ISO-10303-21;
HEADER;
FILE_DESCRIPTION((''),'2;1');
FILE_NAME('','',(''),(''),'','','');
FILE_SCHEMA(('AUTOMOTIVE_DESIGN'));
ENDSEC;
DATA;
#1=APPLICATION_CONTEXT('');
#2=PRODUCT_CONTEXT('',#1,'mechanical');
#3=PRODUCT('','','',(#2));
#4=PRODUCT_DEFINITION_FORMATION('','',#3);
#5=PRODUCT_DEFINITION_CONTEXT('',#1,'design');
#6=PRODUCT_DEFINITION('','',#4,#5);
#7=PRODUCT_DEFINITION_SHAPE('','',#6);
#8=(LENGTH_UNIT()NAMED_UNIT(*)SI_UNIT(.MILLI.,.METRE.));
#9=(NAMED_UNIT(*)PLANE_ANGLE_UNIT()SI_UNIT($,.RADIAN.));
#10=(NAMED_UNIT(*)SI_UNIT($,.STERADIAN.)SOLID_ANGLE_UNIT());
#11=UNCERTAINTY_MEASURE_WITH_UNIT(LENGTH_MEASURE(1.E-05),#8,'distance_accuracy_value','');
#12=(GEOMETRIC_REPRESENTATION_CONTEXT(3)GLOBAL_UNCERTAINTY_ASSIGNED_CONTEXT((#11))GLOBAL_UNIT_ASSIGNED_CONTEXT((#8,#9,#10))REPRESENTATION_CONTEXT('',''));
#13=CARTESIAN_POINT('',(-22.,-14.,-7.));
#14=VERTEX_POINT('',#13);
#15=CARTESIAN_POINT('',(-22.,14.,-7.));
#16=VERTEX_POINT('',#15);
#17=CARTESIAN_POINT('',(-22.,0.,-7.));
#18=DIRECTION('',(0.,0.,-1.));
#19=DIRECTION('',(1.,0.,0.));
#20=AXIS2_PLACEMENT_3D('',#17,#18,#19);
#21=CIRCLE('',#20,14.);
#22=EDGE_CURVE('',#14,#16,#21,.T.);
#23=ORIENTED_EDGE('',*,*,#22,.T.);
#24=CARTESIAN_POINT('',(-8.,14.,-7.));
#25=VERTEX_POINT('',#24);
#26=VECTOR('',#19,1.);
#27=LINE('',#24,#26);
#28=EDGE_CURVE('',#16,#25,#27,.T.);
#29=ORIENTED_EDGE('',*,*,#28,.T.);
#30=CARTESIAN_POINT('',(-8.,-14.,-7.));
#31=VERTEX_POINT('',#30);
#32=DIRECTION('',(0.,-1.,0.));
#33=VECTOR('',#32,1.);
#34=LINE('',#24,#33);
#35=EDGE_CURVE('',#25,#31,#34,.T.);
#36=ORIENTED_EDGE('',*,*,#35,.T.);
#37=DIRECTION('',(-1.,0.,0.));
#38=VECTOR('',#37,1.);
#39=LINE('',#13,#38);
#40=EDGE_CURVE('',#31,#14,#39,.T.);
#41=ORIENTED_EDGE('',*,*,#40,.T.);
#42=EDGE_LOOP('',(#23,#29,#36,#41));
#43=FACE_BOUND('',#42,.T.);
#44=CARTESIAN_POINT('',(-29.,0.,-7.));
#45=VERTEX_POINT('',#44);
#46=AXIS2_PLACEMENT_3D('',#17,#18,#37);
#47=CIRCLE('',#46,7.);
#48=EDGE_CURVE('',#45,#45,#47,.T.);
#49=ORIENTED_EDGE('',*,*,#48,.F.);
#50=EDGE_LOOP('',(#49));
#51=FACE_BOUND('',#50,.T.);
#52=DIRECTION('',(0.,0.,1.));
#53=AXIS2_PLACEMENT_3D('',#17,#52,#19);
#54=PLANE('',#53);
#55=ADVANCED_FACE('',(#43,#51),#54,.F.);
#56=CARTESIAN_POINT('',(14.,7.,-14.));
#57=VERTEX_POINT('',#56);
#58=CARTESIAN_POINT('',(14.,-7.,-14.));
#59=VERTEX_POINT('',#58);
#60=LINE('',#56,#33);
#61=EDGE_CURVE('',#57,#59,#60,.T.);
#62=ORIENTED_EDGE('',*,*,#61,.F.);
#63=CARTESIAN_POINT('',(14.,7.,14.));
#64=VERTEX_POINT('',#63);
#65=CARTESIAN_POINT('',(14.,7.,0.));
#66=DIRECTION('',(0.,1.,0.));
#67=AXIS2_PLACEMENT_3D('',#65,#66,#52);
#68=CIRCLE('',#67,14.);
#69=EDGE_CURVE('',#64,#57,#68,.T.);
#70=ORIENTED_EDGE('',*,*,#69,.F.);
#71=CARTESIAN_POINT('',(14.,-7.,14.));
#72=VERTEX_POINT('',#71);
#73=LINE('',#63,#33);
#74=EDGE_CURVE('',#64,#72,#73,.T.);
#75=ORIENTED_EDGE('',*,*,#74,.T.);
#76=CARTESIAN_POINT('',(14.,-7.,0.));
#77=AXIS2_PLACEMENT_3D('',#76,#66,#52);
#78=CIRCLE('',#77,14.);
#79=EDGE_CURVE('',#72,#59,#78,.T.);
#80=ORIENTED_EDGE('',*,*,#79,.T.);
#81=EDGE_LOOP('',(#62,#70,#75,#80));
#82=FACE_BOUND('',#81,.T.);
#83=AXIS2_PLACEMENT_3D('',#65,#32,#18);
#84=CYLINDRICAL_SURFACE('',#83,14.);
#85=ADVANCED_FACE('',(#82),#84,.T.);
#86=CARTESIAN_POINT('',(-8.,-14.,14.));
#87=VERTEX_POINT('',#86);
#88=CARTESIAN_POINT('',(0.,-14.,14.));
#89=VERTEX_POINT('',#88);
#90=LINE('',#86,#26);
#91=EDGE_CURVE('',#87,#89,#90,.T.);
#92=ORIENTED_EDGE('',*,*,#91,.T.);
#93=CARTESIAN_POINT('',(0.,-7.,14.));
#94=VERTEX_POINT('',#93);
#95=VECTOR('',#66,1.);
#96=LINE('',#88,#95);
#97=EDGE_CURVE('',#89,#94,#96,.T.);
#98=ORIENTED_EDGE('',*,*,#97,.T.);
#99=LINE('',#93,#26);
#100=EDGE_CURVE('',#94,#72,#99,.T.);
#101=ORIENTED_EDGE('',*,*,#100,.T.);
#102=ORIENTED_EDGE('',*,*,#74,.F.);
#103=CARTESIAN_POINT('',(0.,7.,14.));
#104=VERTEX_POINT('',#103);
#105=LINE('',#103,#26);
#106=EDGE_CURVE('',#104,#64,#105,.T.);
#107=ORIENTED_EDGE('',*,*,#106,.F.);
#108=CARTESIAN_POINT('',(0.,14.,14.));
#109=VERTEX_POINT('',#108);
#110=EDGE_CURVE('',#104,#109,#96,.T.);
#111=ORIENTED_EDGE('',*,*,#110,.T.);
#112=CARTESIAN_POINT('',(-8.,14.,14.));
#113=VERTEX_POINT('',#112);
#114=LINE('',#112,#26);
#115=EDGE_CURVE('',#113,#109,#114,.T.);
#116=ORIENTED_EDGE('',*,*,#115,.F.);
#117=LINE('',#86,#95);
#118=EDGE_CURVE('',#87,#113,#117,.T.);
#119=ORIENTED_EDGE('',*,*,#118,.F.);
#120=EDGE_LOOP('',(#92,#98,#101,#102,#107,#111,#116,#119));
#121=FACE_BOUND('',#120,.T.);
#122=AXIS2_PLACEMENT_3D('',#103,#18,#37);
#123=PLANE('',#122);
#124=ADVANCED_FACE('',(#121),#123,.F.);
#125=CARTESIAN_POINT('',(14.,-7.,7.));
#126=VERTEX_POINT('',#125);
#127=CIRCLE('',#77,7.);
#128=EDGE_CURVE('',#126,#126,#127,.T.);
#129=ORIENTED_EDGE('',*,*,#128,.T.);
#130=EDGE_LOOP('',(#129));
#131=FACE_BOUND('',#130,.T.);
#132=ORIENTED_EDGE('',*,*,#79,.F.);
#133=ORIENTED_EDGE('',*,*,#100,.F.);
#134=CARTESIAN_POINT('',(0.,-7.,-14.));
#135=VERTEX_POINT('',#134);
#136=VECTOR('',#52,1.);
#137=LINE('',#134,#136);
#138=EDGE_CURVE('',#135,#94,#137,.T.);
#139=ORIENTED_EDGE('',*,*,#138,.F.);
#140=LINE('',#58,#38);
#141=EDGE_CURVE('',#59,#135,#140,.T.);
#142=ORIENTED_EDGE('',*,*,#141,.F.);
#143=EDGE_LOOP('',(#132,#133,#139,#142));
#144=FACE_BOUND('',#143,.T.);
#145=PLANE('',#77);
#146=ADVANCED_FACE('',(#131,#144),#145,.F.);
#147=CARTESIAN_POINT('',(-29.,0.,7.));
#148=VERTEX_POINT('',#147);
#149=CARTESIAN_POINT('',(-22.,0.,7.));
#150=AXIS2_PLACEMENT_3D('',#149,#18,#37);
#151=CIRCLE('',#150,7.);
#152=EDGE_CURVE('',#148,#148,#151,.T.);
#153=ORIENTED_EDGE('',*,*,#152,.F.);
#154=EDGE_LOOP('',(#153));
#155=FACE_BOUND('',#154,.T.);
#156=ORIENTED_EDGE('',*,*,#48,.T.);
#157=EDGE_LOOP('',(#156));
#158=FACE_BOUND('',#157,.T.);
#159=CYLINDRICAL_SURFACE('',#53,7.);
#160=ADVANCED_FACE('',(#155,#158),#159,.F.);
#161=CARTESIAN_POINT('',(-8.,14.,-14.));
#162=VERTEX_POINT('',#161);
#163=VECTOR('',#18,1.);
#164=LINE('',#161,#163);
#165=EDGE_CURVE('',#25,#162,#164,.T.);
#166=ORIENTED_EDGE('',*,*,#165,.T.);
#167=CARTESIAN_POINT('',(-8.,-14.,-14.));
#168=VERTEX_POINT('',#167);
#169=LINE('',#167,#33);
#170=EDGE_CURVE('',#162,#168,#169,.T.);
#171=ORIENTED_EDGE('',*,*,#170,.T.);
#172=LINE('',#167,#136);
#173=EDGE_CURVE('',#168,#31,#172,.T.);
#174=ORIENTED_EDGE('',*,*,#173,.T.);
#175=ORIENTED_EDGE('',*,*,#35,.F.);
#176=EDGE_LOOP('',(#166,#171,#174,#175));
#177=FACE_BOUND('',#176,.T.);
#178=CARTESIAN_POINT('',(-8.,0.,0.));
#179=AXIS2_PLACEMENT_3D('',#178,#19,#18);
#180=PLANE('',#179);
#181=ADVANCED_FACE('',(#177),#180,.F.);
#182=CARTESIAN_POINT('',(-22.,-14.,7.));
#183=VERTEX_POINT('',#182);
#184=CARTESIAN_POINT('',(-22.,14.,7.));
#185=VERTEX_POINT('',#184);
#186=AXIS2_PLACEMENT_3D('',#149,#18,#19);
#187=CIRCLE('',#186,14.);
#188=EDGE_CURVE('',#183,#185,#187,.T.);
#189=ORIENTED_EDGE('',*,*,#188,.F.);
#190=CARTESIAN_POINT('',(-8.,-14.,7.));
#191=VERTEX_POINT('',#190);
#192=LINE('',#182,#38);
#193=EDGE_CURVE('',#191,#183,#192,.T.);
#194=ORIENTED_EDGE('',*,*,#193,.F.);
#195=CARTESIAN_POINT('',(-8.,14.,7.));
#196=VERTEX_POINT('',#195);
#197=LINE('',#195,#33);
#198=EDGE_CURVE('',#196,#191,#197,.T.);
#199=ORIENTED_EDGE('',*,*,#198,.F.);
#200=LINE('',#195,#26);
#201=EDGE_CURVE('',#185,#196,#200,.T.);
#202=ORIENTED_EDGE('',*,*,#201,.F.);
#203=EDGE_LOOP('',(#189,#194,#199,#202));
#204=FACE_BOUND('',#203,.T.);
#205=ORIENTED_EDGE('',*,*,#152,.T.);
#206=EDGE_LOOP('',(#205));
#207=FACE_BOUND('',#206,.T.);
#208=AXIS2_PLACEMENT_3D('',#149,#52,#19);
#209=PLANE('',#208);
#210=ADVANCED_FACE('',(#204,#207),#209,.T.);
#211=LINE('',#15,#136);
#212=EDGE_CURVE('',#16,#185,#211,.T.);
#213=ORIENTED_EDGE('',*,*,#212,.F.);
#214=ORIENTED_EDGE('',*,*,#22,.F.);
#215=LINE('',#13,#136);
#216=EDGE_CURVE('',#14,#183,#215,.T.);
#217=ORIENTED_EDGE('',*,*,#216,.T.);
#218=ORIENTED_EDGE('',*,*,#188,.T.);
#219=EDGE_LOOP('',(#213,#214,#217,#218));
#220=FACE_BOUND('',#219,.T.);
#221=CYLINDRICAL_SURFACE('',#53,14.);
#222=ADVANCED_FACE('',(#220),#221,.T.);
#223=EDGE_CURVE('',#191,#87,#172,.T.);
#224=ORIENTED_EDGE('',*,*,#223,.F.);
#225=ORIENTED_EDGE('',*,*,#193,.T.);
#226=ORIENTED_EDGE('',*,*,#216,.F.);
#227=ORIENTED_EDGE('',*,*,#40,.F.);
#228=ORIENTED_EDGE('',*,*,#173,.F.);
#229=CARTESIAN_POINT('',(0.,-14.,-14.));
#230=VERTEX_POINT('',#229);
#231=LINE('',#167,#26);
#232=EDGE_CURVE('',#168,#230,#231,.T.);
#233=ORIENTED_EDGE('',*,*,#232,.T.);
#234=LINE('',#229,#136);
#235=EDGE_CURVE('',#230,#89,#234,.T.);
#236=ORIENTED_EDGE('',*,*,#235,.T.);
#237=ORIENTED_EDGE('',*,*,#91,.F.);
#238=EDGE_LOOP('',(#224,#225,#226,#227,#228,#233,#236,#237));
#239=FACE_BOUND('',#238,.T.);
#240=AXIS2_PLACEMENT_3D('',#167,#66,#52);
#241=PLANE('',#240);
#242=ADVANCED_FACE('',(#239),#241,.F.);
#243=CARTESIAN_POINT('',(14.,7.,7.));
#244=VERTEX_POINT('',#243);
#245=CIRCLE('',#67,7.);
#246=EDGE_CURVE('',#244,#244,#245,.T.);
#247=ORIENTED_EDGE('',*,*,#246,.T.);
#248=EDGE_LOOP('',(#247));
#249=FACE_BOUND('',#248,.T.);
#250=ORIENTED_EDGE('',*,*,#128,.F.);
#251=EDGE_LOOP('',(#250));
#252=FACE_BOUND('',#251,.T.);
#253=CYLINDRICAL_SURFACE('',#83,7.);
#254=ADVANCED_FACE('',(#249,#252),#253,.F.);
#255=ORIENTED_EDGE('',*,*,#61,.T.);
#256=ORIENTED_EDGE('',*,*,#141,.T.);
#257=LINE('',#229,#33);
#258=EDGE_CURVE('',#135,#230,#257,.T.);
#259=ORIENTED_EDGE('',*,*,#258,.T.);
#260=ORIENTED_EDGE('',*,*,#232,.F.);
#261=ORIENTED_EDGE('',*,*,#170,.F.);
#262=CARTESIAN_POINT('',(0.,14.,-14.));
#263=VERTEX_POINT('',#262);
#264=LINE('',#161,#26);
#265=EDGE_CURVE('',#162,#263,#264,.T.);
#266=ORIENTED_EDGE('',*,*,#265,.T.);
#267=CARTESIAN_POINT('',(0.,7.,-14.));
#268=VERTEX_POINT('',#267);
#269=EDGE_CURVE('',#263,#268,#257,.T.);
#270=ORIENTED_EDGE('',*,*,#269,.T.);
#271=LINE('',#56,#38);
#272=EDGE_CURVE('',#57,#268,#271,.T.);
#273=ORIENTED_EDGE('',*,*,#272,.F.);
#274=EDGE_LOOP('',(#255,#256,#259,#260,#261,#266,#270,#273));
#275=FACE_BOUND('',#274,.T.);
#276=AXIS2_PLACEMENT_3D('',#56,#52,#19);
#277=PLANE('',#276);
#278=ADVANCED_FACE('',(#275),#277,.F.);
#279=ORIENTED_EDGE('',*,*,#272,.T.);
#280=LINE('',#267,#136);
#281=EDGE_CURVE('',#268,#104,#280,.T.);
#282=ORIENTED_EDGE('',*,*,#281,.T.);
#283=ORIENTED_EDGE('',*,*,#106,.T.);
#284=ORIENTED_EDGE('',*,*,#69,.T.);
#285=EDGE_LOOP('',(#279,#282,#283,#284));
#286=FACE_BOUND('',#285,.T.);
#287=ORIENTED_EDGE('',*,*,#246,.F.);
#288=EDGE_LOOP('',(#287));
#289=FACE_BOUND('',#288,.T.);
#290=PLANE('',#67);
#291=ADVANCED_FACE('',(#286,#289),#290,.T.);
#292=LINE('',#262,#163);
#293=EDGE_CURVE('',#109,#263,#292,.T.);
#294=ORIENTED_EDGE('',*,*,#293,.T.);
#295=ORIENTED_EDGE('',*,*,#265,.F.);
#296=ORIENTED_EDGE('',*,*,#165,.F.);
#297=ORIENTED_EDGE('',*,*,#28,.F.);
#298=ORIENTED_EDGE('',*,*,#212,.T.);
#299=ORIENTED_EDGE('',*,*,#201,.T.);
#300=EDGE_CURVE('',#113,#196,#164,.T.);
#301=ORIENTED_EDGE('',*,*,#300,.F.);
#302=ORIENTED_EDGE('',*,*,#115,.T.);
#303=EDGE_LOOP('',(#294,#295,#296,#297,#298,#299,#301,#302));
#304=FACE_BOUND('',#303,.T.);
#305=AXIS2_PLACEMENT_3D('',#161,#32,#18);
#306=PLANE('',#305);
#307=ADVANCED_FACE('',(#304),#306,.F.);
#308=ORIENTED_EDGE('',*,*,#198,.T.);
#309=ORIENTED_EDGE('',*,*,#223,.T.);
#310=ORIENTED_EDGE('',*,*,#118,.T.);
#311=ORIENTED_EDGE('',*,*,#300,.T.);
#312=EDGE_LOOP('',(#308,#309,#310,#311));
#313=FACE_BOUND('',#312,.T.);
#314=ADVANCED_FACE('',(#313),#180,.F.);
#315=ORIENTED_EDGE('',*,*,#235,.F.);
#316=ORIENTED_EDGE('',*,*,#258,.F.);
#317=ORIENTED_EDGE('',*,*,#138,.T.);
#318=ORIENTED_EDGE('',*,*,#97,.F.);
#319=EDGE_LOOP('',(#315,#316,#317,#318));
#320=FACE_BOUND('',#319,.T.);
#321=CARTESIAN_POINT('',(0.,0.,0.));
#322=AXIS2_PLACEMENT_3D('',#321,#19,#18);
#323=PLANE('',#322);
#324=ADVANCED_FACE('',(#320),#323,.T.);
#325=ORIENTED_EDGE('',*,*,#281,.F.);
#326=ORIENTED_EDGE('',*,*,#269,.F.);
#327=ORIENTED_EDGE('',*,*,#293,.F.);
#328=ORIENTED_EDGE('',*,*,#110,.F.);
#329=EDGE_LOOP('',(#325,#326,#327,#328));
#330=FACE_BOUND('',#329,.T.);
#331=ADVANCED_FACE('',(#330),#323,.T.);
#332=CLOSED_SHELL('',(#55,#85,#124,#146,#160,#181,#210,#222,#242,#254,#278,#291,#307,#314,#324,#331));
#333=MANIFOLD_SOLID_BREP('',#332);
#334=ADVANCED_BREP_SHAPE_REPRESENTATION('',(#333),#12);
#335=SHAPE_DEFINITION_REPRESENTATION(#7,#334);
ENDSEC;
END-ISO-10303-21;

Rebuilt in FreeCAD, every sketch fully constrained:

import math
import FreeCAD as App
import Part
import Sketcher
from FreeCAD import Vector
Q = App.Units.Quantity

doc = App.newDocument("Part")
params = doc.addObject("Spreadsheet::Sheet", "Params")
for row, (alias, value) in enumerate([
    ("sketch1_diameter", "14 mm"),
    ("sketch1_radius", "14 mm"),
    ("sketch1_width", "14 mm"),
    ("pad1_length", "14 mm"),
    ("sketch2_width", "28 mm"),
    ("pad2_length", "8 mm"),
    ("sketch3_diameter", "14 mm"),
    ("sketch3_radius", "14 mm"),
    ("sketch3_width", "14 mm"),
    ("pad3_length", "14 mm"),
], start=1):
    params.set(f"A{row}", alias)
    params.set(f"B{row}", "=" + value)
    params.setAlias(f"B{row}", alias)

body = doc.addObject("PartDesign::Body", "Body")

# Sketch on XZ plane
sketch1 = body.newObject("Sketcher::SketchObject", "Sketch")
sketch1.AttachmentSupport = (doc.getObject("XZ_Plane"), [""])
sketch1.MapMode = "FlatFace"
sketch1.addGeometry([
    Part.LineSegment(Vector(0, -14, 0), Vector(0, 14, 0)),  # 0
    Part.LineSegment(Vector(0, 14, 0), Vector(14, 14, 0)),  # 1
    Part.ArcOfCircle(Part.Circle(Vector(14, 0, 0), Vector(0, 0, 1), 14), math.radians(-90), math.radians(90)),  # 2
    Part.LineSegment(Vector(14, -14, 0), Vector(0, -14, 0)),  # 3
    Part.Circle(Vector(14, 0, 0), Vector(0, 0, 1), 7),  # 4
], False)
sketch1.addConstraint([
    Sketcher.Constraint("Coincident", 0, 2, 1, 1),
    Sketcher.Constraint("Tangent", 1, 2, 2, 2),
    Sketcher.Constraint("Tangent", 2, 1, 3, 1),
    Sketcher.Constraint("Coincident", 3, 2, 0, 1),
    Sketcher.Constraint("Vertical", 0),
    Sketcher.Constraint("Horizontal", 1),
    Sketcher.Constraint("Horizontal", 3),
    Sketcher.Constraint("Coincident", 4, 3, 2, 3),
    Sketcher.Constraint("Symmetric", 0, 2, 3, 2, -1, 1),
    Sketcher.Constraint("Diameter", 4, Q("14 mm")),
    Sketcher.Constraint("Radius", 2, Q("14 mm")),
    Sketcher.Constraint("DistanceX", 1, 1, 1, 2, Q("14 mm")),
])
sketch1.setExpression("Constraints[9]", "Params.sketch1_diameter")
sketch1.setExpression("Constraints[10]", "Params.sketch1_radius")
sketch1.setExpression("Constraints[11]", "Params.sketch1_width")
pad1 = body.newObject("PartDesign::Pad", "Pad")
pad1.Profile = sketch1
pad1.setExpression("Length", "Params.pad1_length")
pad1.Midplane = True

# Sketch on YZ plane
sketch2 = body.newObject("Sketcher::SketchObject", "Sketch001")
sketch2.AttachmentSupport = (doc.getObject("YZ_Plane"), [""])
sketch2.MapMode = "FlatFace"
sketch2.addGeometry([
    Part.LineSegment(Vector(14, -14, 0), Vector(-14, -14, 0)),
    Part.LineSegment(Vector(-14, -14, 0), Vector(-14, 14, 0)),
    Part.LineSegment(Vector(-14, 14, 0), Vector(14, 14, 0)),
    Part.LineSegment(Vector(14, 14, 0), Vector(14, -14, 0)),
], False)
sketch2.addConstraint([
    Sketcher.Constraint("Coincident", 0, 2, 1, 1),
    Sketcher.Constraint("Coincident", 1, 2, 2, 1),
    Sketcher.Constraint("Coincident", 2, 2, 3, 1),
    Sketcher.Constraint("Coincident", 3, 2, 0, 1),
    Sketcher.Constraint("Horizontal", 0),
    Sketcher.Constraint("Vertical", 1),
    Sketcher.Constraint("Horizontal", 2),
    Sketcher.Constraint("Vertical", 3),
    Sketcher.Constraint("Symmetric", 0, 2, 2, 2, -1, 1),
    Sketcher.Constraint("Equal", 2, 1),
    Sketcher.Constraint("DistanceX", 0, 2, 0, 1, Q("28 mm")),
])
sketch2.setExpression("Constraints[10]", "Params.sketch2_width")
pad2 = body.newObject("PartDesign::Pad", "Pad001")
pad2.Profile = sketch2
pad2.setExpression("Length", "Params.pad2_length")
pad2.Reversed = True

# Sketch on XY plane
sketch3 = body.newObject("Sketcher::SketchObject", "Sketch002")
sketch3.AttachmentSupport = (doc.getObject("XY_Plane"), [""])
sketch3.MapMode = "FlatFace"
sketch3.addGeometry([
    Part.LineSegment(Vector(-8, 14, 0), Vector(-8, -14, 0)),  # 0
    Part.LineSegment(Vector(-8, -14, 0), Vector(-22, -14, 0)),  # 1
    Part.ArcOfCircle(Part.Circle(Vector(-22, 0, 0), Vector(0, 0, 1), 14), math.radians(90), math.radians(270)),  # 2
    Part.LineSegment(Vector(-22, 14, 0), Vector(-8, 14, 0)),  # 3
    Part.Circle(Vector(-22, 0, 0), Vector(0, 0, 1), 7),  # 4
], False)
sketch3.addConstraint([
    Sketcher.Constraint("Coincident", 0, 2, 1, 1),
    Sketcher.Constraint("Tangent", 1, 2, 2, 2),
    Sketcher.Constraint("Tangent", 2, 1, 3, 1),
    Sketcher.Constraint("Coincident", 3, 2, 0, 1),
    Sketcher.Constraint("Vertical", 0),
    Sketcher.Constraint("Horizontal", 1),
    Sketcher.Constraint("Horizontal", 3),
    Sketcher.Constraint("Coincident", 4, 3, 2, 3),
    Sketcher.Constraint("PointOnObject", 2, 3, -1),
    Sketcher.Constraint("Diameter", 4, Q("14 mm")),
    Sketcher.Constraint("Radius", 2, Q("14 mm")),
    Sketcher.Constraint("DistanceX", 1, 2, 1, 1, Q("14 mm")),
    Sketcher.Constraint("DistanceX", 2, 3, -1, 1, Q("22 mm")),
])
sketch3.setExpression("Constraints[9]", "Params.sketch3_diameter")
sketch3.setExpression("Constraints[10]", "Params.sketch3_radius")
sketch3.setExpression("Constraints[11]", "Params.sketch3_width")
pad3 = body.newObject("PartDesign::Pad", "Pad002")
pad3.Profile = sketch3
pad3.setExpression("Length", "Params.pad3_length")
pad3.Midplane = True

doc.recompute()
